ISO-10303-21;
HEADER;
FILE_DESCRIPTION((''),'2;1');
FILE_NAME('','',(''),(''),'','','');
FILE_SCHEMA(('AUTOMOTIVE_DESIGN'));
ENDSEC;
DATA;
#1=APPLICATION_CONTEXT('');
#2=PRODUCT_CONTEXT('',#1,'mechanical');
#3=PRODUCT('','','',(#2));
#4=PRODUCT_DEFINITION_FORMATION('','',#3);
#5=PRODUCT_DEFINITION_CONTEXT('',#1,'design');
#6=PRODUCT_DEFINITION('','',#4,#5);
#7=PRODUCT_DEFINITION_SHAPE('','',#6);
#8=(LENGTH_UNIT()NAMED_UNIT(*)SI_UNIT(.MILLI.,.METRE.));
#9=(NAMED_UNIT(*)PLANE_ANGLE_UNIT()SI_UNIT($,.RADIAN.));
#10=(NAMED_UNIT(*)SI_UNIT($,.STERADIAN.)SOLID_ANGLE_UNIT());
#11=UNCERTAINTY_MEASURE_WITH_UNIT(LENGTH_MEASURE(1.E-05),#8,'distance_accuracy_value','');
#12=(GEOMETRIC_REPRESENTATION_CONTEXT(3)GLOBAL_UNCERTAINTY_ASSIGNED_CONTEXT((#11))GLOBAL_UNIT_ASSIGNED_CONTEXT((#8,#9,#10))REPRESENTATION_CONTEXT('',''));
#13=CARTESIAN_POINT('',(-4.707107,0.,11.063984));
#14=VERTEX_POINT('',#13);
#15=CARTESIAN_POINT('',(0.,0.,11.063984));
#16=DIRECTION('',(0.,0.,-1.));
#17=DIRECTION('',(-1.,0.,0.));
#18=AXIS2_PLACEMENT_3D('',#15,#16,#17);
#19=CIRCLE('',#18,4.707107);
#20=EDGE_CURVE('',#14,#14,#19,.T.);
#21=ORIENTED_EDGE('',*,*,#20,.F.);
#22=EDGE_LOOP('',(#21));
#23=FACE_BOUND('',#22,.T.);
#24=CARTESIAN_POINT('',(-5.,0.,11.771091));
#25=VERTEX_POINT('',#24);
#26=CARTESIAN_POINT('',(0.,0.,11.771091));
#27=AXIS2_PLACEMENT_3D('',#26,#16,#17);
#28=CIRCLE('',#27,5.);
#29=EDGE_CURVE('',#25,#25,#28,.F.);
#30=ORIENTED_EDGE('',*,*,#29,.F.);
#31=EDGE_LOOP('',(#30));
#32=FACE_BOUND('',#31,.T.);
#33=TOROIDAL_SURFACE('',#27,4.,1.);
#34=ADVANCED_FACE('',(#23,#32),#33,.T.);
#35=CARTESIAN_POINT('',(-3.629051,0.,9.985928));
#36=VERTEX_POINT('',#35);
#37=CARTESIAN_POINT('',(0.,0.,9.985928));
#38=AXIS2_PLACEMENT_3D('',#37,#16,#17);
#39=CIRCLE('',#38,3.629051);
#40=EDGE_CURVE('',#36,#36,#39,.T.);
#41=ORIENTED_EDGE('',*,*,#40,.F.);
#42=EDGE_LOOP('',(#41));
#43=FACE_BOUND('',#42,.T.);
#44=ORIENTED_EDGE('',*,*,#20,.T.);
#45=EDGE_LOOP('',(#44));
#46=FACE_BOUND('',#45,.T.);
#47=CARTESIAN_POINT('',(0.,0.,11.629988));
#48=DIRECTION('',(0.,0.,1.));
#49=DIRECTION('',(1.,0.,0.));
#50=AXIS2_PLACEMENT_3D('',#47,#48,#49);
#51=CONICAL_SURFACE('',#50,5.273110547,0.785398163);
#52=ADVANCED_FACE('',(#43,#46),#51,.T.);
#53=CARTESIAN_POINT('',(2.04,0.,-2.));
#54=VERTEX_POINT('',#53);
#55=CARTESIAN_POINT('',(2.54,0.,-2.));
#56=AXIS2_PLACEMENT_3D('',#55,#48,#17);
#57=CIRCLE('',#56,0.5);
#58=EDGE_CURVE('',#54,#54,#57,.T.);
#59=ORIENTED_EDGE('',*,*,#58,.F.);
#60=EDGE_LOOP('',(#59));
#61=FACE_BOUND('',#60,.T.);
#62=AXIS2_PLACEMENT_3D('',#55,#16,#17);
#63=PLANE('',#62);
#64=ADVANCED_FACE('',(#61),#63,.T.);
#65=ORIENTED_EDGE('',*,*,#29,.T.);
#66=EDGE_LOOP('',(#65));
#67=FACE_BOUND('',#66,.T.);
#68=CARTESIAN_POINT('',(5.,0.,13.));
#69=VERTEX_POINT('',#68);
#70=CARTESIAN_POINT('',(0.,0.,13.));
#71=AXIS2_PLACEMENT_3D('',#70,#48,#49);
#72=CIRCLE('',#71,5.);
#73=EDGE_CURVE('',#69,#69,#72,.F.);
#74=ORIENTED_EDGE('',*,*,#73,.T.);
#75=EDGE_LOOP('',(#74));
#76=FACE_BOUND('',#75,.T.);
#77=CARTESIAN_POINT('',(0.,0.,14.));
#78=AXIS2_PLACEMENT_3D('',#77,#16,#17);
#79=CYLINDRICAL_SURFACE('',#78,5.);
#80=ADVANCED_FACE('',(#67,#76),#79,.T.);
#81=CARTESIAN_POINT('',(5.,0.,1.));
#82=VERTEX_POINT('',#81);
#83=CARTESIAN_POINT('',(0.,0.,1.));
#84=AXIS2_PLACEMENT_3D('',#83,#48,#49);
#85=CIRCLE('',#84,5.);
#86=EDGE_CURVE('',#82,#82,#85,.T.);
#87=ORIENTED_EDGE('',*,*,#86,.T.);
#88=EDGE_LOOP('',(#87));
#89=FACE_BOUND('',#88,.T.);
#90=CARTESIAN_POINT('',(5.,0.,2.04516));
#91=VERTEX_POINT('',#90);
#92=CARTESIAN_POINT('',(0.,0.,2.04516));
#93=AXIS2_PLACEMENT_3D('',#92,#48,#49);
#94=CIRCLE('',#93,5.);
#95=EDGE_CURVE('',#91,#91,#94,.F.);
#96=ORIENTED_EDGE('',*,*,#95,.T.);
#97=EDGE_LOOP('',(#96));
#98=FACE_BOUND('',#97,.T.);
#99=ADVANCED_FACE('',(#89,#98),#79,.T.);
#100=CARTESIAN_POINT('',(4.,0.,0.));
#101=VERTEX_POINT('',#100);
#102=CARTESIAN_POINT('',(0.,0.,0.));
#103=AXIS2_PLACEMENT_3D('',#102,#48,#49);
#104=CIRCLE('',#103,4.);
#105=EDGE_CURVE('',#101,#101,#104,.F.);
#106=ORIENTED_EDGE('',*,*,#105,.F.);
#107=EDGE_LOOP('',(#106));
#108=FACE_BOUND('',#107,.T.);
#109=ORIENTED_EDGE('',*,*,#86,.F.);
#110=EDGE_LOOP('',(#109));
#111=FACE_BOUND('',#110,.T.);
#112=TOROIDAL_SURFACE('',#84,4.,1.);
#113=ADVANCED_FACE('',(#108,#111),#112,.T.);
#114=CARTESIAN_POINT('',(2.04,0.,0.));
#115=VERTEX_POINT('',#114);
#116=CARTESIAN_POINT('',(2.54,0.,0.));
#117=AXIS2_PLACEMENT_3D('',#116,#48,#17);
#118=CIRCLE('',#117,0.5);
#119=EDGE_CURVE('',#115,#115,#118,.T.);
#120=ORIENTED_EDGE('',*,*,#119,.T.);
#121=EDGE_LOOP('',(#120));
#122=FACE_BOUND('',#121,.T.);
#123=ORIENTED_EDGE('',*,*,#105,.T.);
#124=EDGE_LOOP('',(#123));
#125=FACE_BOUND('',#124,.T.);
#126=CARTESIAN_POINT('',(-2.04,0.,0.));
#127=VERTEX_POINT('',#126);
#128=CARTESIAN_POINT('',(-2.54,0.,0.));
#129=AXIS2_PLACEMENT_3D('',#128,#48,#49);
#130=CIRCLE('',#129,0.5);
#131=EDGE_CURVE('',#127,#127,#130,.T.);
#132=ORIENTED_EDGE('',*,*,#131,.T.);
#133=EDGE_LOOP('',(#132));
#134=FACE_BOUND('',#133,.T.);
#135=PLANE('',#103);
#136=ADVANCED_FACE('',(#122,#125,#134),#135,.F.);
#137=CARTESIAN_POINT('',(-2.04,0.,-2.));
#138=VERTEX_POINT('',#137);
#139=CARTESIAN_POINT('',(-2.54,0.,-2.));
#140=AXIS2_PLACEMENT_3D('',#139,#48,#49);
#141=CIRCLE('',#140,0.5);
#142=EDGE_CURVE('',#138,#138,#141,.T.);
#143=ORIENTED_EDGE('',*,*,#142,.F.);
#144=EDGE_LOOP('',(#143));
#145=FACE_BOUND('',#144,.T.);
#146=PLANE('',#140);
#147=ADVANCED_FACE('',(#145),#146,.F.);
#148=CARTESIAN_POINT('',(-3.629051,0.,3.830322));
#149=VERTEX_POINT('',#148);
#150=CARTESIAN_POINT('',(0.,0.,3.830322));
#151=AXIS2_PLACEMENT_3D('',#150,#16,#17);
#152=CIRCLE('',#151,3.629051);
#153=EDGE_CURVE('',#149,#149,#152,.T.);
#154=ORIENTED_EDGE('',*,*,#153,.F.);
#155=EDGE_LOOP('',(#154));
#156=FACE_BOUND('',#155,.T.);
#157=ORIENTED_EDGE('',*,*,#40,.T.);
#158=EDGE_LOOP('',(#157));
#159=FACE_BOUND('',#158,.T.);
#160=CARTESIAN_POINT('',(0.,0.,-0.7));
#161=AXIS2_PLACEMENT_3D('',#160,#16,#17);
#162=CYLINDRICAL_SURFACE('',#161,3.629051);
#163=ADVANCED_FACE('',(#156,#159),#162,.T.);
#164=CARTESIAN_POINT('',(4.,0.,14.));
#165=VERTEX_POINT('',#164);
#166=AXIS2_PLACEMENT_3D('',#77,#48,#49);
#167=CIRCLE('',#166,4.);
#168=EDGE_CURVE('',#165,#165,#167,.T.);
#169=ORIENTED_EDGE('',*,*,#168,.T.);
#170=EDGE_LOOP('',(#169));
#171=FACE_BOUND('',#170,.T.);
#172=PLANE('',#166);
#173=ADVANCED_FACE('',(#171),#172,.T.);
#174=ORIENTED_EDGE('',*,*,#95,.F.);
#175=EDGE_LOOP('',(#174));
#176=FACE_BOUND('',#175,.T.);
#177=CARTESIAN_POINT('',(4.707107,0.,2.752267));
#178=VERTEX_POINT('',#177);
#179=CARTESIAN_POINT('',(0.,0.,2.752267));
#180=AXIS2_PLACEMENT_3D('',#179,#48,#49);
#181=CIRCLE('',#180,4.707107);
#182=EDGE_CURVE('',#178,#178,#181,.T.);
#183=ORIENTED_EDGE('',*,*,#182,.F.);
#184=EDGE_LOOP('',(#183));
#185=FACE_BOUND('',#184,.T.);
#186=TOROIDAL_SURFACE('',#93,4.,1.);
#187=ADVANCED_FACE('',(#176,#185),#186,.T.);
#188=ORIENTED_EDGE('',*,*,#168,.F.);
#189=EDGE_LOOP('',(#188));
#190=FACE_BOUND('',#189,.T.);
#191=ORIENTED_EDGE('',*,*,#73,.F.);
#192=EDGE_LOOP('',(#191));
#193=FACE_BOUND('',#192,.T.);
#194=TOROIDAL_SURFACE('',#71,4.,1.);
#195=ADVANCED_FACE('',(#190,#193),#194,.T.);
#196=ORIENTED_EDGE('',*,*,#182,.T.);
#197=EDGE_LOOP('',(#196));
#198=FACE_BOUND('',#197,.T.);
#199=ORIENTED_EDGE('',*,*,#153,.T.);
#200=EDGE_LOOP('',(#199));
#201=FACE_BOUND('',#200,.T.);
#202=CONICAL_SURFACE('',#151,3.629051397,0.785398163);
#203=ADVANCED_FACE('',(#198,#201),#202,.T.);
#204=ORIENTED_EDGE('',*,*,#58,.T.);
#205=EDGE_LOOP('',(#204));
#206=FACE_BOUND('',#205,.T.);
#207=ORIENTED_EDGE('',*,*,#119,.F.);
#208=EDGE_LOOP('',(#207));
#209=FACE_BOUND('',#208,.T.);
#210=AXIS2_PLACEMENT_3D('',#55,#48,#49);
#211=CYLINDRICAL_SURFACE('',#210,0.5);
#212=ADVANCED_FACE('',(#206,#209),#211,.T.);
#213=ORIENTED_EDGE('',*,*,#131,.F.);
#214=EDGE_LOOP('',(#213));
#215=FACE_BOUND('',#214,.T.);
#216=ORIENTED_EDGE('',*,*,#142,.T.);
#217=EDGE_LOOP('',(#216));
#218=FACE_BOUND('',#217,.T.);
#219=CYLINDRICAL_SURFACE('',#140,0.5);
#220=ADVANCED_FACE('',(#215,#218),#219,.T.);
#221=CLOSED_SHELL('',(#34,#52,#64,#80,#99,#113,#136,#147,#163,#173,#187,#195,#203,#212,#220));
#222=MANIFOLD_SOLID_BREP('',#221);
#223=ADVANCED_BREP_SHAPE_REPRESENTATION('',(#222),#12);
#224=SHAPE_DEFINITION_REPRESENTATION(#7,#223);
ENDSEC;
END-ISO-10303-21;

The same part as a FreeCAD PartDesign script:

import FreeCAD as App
import Part
import Sketcher

V = App.Vector


def edges_at(feature, points):
    """Names of the edges that pass closest to the given points."""
    edges = feature.Shape.Edges
    near = lambda p: min(range(len(edges)), key=lambda i: edges[i].distToShape(Part.Vertex(*p))[0])
    return sorted({f"Edge{near(p) + 1}" for p in points})


def add_polygon(sketch, points):
    """Adds a closed chain of lines whose ends are joined by coincident constraints."""
    first, n = sketch.GeometryCount, len(points)
    for a, b in zip(points, points[1:] + points[:1]):
        sketch.addGeometry(Part.LineSegment(App.Vector(*a, 0), App.Vector(*b, 0)), False)
    for i in range(n):
        sketch.addConstraint(Sketcher.Constraint("Coincident", first + i, 2, first + (i + 1) % n, 1))

doc = App.newDocument("Part")
params = doc.addObject("Spreadsheet::Sheet", "Params")
for row, (alias, value) in enumerate([
    ("sketch1_diameter", "10 mm"),
    ("pad1_length", "14 mm"),
    ("groove_angle", "360 deg"),
    ("sketch3_diameter", "1 mm"),
    ("pad2_length", "2 mm"),
    ("fillet_radius", "1 mm"),
], start=1):
    params.set(f"A{row}", alias)
    params.set(f"B{row}", "=" + value)
    params.setAlias(f"B{row}", alias)

body = doc.addObject("PartDesign::Body", "Body")

# Sketch on XY plane
sketch1 = doc.addObject("Sketcher::SketchObject", "Sketch")
body.addObject(sketch1)
sketch1.AttachmentSupport = (doc.XY_Plane, [""])
sketch1.MapMode = "FlatFace"
sketch1.addGeometry(Part.Circle(V(0, 0, 0), V(0, 0, 1), 5), False)
sketch1.addConstraint(Sketcher.Constraint("Coincident", 0, 3, -1, 1))
sketch1.addConstraint(Sketcher.Constraint("Diameter", 0, 10.0))
sketch1.setExpression("Constraints[1]", "Params.sketch1_diameter")
pad1 = doc.addObject("PartDesign::Pad", "Pad")
body.addObject(pad1)
pad1.Profile = sketch1
pad1.setExpression("Length", "Params.pad1_length")

# Sketch on XZ plane
sketch2 = doc.addObject("Sketcher::SketchObject", "Sketch001")
body.addObject(sketch2)
sketch2.AttachmentSupport = (doc.XZ_Plane, [""])
sketch2.MapMode = "FlatFace"
add_polygon(sketch2, [(-3.629051, 3.830322), (-5.273111, 2.186263), (-5.273111, 11.629988), (-3.629051, 9.985928)])  # lines 0-3
sketch2.addConstraint(Sketcher.Constraint("Vertical", 1))
sketch2.addConstraint(Sketcher.Constraint("Vertical", 3))
sketch2.addConstraint(Sketcher.Constraint("Perpendicular", 0, 2))
sketch2.addConstraint(Sketcher.Constraint("Equal", 0, 2))
sketch2.addConstraint(Sketcher.Constraint("Distance", 0, 2.325051))
sketch2.addConstraint(Sketcher.Constraint("DistanceY", 1, 1, 1, 2, 9.443724))
sketch2.addConstraint(Sketcher.Constraint("DistanceX", 0, 2, -1, 1, 5.273111))
sketch2.addConstraint(Sketcher.Constraint("DistanceY", -1, 1, 2, 2, 9.985928))
groove = doc.addObject("PartDesign::Groove", "Groove")
body.addObject(groove)
groove.Profile = sketch2
groove.ReferenceAxis = (sketch2, ["V_Axis"])
groove.setExpression("Angle", "Params.groove_angle")

# Sketch on XY plane
sketch3 = doc.addObject("Sketcher::SketchObject", "Sketch002")
body.addObject(sketch3)
sketch3.AttachmentSupport = (doc.XY_Plane, [""])
sketch3.MapMode = "FlatFace"
sketch3.addGeometry(Part.Circle(V(-2.54, 0, 0), V(0, 0, 1), 0.5), False)
sketch3.addGeometry(Part.Circle(V(2.54, 0, 0), V(0, 0, 1), 0.5), False)
sketch3.addConstraint(Sketcher.Constraint("Equal", 0, 1))
sketch3.addConstraint(Sketcher.Constraint("Symmetric", 0, 3, 1, 3, -1, 1))
sketch3.addConstraint(Sketcher.Constraint("PointOnObject", 0, 3, -1))
sketch3.addConstraint(Sketcher.Constraint("Diameter", 0, 1.0))
sketch3.addConstraint(Sketcher.Constraint("DistanceX", 0, 3, -1, 1, 2.54))
sketch3.setExpression("Constraints[3]", "Params.sketch3_diameter")
pad2 = doc.addObject("PartDesign::Pad", "Pad001")
body.addObject(pad2)
pad2.Profile = sketch3
pad2.setExpression("Length", "Params.pad2_length")
pad2.Reversed = True
doc.recompute()

fillet = doc.addObject("PartDesign::Fillet", "Fillet")
body.addObject(fillet)
fillet.Base = (pad2, edges_at(pad2, [
    (-5, 0, 0),
    (-5, 0, 14),
    (0, -5, 2.459),
    (0, -5, 11.357),
]))
fillet.setExpression("Radius", "Params.fillet_radius")

doc.recompute()
